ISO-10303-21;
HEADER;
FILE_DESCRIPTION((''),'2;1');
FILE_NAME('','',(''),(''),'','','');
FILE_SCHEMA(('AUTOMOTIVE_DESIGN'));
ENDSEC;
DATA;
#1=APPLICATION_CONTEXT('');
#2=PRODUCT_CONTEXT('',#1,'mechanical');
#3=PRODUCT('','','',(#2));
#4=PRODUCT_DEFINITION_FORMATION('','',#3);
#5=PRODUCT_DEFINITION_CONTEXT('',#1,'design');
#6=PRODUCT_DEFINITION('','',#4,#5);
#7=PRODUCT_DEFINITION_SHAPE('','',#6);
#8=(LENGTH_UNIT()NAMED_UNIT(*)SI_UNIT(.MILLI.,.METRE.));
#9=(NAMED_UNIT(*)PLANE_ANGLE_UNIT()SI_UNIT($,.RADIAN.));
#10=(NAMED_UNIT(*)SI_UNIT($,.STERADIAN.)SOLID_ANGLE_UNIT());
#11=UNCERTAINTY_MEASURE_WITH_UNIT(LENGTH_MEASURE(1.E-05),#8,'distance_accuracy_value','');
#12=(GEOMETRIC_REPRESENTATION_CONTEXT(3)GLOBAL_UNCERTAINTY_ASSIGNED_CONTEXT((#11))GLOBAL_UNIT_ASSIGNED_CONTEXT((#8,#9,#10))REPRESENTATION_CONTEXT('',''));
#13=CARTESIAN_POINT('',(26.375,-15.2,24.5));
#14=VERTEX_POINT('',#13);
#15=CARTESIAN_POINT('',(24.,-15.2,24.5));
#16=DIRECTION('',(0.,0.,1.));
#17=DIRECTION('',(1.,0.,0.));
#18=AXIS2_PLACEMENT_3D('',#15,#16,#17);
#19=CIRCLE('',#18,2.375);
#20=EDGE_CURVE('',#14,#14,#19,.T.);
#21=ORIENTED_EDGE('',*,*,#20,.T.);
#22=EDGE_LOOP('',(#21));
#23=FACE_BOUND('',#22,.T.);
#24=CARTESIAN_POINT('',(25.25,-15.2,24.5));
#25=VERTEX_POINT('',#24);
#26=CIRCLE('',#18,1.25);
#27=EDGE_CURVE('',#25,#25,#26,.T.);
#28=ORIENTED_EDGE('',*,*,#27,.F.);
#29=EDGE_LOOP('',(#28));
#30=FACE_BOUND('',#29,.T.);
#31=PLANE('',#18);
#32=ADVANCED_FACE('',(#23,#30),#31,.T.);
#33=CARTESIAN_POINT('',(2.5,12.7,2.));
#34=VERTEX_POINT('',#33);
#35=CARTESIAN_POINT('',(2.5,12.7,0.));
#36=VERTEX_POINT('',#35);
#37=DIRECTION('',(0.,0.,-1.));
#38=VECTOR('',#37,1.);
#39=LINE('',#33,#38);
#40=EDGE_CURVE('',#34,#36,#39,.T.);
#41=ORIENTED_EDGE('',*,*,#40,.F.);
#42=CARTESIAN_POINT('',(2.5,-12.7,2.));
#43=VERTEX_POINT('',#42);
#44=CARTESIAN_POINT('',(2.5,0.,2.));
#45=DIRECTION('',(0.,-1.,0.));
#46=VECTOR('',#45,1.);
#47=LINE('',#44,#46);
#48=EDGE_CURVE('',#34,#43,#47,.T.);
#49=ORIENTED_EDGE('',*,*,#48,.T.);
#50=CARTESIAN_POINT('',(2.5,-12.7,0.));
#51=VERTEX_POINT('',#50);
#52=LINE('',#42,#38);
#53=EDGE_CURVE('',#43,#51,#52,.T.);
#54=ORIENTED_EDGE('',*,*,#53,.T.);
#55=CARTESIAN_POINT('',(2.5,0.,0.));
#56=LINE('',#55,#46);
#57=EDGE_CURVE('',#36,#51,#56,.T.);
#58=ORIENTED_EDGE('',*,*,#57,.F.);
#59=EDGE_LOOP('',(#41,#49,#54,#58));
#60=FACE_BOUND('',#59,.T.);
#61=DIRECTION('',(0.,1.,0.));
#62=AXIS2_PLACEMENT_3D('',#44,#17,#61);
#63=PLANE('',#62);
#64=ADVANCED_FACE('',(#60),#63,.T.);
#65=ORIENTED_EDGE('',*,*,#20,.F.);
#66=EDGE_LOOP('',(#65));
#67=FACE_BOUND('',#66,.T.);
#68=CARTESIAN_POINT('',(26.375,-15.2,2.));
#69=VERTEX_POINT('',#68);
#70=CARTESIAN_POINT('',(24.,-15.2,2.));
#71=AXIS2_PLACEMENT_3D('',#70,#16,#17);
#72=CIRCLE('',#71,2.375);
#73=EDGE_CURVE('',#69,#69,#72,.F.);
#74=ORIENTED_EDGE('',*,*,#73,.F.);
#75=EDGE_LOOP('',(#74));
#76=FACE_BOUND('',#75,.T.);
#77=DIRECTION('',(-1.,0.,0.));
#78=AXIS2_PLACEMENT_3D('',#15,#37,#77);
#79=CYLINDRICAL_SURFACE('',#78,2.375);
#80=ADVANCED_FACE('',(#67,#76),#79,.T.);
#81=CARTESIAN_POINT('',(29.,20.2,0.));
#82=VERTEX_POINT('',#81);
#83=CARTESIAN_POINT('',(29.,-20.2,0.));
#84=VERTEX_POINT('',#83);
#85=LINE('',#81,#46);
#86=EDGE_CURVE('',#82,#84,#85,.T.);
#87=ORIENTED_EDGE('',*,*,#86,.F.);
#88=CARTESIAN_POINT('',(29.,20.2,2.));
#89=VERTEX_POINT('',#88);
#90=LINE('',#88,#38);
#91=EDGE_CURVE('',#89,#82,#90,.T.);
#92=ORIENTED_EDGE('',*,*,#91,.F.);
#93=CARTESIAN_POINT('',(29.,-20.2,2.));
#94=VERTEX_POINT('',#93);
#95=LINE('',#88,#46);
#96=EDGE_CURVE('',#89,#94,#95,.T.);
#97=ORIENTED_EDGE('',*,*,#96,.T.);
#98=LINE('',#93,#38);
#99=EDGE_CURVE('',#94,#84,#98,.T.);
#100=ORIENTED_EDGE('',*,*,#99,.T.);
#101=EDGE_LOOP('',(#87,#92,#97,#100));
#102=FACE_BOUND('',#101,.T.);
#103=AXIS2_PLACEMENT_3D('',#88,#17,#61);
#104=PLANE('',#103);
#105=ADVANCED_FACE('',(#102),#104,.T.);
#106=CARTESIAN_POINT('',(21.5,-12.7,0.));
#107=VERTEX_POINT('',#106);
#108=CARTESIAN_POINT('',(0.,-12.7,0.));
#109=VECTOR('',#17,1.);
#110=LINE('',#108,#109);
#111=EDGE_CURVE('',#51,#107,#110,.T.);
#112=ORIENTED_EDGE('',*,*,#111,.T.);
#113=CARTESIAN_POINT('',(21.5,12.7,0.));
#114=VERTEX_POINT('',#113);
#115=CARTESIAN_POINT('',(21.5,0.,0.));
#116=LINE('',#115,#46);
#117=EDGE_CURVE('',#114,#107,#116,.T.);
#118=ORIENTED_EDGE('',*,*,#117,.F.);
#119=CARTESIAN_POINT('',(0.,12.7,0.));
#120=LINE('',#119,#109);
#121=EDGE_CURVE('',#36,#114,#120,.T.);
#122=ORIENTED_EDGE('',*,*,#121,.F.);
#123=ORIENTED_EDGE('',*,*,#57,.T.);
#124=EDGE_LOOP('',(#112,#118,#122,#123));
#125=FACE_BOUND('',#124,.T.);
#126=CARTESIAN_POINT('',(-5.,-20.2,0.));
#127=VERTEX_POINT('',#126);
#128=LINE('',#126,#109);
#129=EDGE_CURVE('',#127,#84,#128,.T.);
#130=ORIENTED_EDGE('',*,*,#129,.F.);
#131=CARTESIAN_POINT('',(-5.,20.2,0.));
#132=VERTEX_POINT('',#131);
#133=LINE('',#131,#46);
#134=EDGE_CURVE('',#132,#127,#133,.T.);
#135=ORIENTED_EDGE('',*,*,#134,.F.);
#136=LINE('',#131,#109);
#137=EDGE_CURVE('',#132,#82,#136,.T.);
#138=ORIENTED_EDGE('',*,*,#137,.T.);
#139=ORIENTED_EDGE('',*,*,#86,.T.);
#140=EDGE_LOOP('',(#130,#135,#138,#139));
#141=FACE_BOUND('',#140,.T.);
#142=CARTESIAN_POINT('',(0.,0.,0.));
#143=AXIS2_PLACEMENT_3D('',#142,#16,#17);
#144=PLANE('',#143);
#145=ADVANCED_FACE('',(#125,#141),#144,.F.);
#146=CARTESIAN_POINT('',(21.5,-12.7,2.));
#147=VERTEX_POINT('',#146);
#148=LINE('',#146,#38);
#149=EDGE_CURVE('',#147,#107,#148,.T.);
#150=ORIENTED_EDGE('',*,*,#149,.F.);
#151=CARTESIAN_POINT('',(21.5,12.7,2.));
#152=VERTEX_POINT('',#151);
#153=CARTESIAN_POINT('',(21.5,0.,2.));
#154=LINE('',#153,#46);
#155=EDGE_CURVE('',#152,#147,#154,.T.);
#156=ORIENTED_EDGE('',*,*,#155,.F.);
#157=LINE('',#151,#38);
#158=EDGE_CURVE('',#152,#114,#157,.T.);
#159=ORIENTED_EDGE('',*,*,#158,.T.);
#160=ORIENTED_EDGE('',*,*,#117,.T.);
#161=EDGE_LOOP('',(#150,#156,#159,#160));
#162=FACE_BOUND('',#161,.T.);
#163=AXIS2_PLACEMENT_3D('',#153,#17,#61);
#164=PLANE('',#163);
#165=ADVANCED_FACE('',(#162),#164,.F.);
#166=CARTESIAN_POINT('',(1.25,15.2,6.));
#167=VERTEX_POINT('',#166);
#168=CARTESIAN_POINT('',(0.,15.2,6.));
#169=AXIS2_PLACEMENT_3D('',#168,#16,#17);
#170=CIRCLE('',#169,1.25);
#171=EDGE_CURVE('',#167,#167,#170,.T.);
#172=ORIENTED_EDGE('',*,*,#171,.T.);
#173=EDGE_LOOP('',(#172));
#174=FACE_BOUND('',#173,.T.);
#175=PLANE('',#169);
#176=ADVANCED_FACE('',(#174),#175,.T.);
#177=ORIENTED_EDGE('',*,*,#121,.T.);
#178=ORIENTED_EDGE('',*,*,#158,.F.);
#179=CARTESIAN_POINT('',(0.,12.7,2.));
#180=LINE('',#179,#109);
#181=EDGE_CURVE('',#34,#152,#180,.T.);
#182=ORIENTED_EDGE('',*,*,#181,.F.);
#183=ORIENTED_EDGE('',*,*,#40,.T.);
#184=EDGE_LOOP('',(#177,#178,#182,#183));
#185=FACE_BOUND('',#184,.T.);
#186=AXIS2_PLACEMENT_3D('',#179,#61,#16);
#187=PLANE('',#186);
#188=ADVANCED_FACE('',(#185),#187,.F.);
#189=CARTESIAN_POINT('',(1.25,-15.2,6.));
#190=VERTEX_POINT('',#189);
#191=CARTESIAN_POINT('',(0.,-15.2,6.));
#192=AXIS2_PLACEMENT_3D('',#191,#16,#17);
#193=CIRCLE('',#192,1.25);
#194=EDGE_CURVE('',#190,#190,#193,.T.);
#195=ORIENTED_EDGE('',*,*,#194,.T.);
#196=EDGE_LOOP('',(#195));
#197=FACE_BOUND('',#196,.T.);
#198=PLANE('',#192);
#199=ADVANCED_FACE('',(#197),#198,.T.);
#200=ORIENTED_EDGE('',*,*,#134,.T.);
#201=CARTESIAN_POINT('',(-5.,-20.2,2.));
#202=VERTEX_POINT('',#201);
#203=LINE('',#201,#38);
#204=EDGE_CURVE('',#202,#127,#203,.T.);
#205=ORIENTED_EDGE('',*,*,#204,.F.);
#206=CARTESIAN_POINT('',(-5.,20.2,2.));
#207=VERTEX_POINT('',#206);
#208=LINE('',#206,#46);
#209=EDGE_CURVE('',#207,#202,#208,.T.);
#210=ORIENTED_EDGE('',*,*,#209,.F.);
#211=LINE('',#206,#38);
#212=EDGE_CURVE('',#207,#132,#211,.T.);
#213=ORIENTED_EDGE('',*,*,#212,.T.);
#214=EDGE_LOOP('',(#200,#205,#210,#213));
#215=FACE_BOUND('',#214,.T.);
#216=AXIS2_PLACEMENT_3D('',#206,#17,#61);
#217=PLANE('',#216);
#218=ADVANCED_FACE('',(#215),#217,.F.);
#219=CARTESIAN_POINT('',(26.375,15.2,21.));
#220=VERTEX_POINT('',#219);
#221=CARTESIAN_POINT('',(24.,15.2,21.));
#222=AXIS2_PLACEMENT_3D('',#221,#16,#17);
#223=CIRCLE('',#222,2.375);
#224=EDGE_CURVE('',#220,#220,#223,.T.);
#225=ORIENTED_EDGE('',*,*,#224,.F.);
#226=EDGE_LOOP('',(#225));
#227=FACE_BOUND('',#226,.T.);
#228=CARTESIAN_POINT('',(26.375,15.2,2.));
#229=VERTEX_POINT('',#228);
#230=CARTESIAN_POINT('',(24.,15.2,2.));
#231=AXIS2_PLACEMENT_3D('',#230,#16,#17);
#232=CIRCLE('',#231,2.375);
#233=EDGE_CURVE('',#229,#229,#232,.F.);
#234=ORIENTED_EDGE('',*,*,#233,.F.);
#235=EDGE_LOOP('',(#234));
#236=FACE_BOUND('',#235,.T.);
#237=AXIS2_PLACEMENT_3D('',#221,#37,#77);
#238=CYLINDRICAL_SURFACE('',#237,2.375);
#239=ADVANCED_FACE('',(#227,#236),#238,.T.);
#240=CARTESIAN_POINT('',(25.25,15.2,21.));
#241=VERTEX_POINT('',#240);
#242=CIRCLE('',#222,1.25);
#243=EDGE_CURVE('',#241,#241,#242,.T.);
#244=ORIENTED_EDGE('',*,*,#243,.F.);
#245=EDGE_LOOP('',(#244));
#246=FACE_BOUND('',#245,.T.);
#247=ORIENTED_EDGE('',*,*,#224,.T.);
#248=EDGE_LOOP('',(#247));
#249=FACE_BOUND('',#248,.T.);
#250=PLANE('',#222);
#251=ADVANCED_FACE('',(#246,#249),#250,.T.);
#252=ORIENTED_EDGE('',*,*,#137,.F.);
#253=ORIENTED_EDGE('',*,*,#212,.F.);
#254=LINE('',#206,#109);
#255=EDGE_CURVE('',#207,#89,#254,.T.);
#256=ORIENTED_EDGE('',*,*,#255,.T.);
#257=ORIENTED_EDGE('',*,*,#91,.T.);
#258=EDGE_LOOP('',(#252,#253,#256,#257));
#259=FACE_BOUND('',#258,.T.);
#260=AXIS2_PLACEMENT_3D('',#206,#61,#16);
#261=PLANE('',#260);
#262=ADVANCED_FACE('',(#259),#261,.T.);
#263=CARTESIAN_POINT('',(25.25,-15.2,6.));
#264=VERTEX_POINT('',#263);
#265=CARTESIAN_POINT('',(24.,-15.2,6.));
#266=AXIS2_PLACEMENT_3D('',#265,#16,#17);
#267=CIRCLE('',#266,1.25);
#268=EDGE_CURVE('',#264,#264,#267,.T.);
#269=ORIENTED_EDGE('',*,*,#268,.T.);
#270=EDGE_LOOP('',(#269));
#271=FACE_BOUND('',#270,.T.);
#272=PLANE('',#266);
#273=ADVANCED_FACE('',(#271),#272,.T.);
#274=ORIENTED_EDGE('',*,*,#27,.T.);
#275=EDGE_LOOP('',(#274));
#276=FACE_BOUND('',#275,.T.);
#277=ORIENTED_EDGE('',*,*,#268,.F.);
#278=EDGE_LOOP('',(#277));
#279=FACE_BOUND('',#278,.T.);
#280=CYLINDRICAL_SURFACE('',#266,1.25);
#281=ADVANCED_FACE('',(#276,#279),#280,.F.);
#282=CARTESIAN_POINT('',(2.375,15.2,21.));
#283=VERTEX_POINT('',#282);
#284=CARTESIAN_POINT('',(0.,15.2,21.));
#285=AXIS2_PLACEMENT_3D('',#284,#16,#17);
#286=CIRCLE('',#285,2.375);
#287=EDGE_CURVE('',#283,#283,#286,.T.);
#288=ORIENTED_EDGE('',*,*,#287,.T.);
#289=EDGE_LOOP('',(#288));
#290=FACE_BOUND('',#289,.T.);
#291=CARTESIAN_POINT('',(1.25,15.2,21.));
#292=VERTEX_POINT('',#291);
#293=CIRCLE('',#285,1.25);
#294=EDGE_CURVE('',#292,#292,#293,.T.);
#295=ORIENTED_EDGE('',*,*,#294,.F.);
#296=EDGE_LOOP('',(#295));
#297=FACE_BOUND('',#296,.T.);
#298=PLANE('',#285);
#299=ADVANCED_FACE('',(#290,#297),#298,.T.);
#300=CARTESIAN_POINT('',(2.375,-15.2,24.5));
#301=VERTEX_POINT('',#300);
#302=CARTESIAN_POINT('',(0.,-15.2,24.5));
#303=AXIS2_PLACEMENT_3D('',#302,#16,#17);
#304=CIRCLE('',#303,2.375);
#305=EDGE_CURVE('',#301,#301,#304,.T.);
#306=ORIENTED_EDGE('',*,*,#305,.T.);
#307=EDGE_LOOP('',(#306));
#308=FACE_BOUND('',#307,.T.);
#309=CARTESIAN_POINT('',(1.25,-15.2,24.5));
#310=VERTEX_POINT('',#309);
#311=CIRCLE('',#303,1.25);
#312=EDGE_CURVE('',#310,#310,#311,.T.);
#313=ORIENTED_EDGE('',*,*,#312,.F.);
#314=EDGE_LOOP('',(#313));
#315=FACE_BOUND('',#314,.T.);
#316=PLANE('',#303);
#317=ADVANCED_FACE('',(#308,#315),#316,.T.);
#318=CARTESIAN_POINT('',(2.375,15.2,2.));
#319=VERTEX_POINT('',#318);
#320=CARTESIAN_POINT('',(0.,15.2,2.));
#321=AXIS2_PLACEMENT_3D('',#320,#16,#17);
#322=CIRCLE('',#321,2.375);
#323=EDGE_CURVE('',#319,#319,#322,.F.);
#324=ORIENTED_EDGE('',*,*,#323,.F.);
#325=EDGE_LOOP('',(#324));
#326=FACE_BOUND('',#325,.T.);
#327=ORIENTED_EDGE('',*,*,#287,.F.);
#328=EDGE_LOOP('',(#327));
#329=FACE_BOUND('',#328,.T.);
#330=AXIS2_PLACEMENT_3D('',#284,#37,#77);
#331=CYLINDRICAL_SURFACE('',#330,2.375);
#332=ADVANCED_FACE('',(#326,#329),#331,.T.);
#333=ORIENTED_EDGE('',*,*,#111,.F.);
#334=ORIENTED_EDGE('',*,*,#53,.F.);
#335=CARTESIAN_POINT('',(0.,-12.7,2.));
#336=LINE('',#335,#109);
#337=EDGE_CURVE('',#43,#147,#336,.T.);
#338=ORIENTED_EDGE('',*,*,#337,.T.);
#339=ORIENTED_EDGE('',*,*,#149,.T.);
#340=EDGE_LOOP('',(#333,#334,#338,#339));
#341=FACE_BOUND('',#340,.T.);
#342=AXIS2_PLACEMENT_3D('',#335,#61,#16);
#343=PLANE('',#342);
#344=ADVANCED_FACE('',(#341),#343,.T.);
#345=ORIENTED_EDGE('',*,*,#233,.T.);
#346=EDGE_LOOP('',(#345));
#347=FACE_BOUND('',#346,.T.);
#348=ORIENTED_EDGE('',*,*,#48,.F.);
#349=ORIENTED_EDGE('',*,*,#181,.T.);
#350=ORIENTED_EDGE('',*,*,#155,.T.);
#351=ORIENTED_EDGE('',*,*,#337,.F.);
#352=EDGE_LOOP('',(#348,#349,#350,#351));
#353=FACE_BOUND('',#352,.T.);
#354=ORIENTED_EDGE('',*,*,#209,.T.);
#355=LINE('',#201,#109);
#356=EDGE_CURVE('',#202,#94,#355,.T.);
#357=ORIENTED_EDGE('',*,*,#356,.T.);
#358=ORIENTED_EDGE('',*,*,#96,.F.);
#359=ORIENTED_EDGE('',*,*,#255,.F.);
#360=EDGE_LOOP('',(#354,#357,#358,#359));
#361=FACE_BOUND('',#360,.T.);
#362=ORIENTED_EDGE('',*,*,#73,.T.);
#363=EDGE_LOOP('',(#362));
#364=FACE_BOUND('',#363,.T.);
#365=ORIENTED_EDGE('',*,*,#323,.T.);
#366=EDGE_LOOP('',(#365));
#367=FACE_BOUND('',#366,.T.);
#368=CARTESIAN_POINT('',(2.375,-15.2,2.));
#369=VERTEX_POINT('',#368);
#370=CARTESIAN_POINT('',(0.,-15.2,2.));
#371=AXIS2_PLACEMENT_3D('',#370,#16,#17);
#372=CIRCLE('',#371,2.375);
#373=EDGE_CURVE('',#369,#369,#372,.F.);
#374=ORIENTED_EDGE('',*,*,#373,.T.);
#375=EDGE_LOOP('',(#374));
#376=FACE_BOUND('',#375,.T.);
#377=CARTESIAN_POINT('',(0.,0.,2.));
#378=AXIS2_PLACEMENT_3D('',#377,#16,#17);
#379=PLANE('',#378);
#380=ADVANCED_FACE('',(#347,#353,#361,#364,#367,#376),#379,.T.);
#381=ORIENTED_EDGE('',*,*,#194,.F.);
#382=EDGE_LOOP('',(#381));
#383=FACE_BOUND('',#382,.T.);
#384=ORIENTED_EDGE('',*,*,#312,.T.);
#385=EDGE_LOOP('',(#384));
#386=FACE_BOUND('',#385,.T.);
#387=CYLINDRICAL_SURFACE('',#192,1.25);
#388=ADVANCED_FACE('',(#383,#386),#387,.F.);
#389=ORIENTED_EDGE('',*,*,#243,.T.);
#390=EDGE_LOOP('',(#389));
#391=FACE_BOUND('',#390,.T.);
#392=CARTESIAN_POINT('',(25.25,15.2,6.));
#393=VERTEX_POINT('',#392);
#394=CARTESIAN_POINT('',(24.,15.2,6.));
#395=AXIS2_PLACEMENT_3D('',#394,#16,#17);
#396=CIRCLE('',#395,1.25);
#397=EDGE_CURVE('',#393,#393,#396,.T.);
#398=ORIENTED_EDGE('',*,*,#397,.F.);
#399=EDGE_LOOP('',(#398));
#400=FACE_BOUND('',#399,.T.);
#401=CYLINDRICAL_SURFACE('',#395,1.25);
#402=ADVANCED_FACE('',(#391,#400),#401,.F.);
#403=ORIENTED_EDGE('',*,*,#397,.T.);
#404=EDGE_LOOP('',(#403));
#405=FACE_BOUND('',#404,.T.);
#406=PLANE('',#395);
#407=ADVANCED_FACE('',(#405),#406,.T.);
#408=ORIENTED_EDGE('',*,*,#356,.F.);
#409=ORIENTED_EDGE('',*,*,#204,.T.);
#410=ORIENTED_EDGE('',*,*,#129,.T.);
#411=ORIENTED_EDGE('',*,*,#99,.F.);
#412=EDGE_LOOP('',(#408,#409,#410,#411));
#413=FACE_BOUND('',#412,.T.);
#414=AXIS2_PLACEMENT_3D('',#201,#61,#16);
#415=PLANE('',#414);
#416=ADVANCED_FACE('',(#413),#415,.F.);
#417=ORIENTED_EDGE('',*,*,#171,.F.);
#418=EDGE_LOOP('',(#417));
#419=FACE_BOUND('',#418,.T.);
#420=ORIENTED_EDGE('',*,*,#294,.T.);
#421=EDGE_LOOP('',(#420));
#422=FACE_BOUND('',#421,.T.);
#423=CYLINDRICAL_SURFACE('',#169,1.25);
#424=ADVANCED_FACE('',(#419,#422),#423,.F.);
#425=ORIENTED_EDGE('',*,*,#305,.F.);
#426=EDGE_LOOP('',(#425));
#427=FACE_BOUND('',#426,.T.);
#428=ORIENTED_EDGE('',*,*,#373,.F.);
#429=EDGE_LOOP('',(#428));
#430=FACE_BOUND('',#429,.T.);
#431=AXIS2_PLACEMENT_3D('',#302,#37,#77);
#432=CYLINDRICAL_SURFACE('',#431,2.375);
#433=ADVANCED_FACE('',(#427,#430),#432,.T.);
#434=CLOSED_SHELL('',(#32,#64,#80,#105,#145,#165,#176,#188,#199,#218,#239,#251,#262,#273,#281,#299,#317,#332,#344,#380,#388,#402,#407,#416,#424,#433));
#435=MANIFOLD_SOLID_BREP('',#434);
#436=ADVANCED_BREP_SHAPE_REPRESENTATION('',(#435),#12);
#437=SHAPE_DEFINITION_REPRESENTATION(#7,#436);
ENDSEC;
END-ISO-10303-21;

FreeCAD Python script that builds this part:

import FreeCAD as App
import Part
import Sketcher

doc = App.newDocument("Part")
body = doc.addObject("PartDesign::Body", "Body")

sketch1 = body.newObject("Sketcher::SketchObject", "Sketch")
sketch1.AttachmentSupport = (doc.getObject("XY_Plane"), [""])
sketch1.MapMode = "FlatFace"
sketch1.addGeometry([
    Part.LineSegment(App.Vector(-5, 20, 0), App.Vector(-5, -20, 0)),
    Part.LineSegment(App.Vector(-5, -20, 0), App.Vector(29, -20, 0)),
    Part.LineSegment(App.Vector(29, -20, 0), App.Vector(29, 20, 0)),
    Part.LineSegment(App.Vector(29, 20, 0), App.Vector(-5, 20, 0)),
    Part.LineSegment(App.Vector(22, -13, 0), App.Vector(2, -13, 0)),
    Part.LineSegment(App.Vector(2, -13, 0), App.Vector(2, 13, 0)),
    Part.LineSegment(App.Vector(2, 13, 0), App.Vector(22, 13, 0)),
    Part.LineSegment(App.Vector(22, 13, 0), App.Vector(22, -13, 0)),
], False)
sketch1.addConstraint([
    Sketcher.Constraint("Coincident", 0, 2, 1, 1),
    Sketcher.Constraint("Coincident", 1, 2, 2, 1),
    Sketcher.Constraint("Coincident", 2, 2, 3, 1),
    Sketcher.Constraint("Coincident", 3, 2, 0, 1),
    Sketcher.Constraint("Coincident", 4, 2, 5, 1),
    Sketcher.Constraint("Coincident", 5, 2, 6, 1),
    Sketcher.Constraint("Coincident", 6, 2, 7, 1),
    Sketcher.Constraint("Coincident", 7, 2, 4, 1),
    Sketcher.Constraint("Vertical", 0),
    Sketcher.Constraint("Horizontal", 1),
    Sketcher.Constraint("Vertical", 2),
    Sketcher.Constraint("Horizontal", 3),
    Sketcher.Constraint("Horizontal", 4),
    Sketcher.Constraint("Vertical", 5),
    Sketcher.Constraint("Horizontal", 6),
    Sketcher.Constraint("Vertical", 7),
    Sketcher.Constraint("DistanceX", 1, 1, 1, 2, 34.0),
    Sketcher.Constraint("DistanceX", 4, 2, 4, 1, 19.0),
    Sketcher.Constraint("DistanceY", 0, 2, 0, 1, 40.4),
    Sketcher.Constraint("DistanceY", 5, 1, 5, 2, 25.4),
    Sketcher.Constraint("DistanceX", 0, 2, -1, 1, 5.0),
    Sketcher.Constraint("DistanceY", 0, 2, -1, 1, 20.2),
    Sketcher.Constraint("DistanceX", -1, 1, 4, 2, 2.5),
    Sketcher.Constraint("DistanceY", 4, 2, -1, 1, 12.7),
])
pad1 = body.newObject("PartDesign::Pad", "Pad")
pad1.Profile = sketch1
pad1.Length = 2

sketch2 = body.newObject("Sketcher::SketchObject", "Sketch001")
sketch2.AttachmentSupport = (doc.getObject("XY_Plane"), [""])
sketch2.MapMode = "FlatFace"
sketch2.addGeometry([
    Part.Circle(App.Vector(0, 15.2, 0), App.Vector(0, 0, 1), 2.4),
    Part.Circle(App.Vector(24, 15.2, 0), App.Vector(0, 0, 1), 2.4),
], False)
sketch2.addConstraint([
    Sketcher.Constraint("Equal", 0, 1),
    Sketcher.Constraint("PointOnObject", 0, 3, -2),
    Sketcher.Constraint("Horizontal", 0, 3, 1, 3),
    Sketcher.Constraint("Diameter", 0, 4.75),
    Sketcher.Constraint("DistanceX", -1, 1, 1, 3, 24.0),
    Sketcher.Constraint("DistanceY", -1, 1, 0, 3, 15.2),
])
pad2 = body.newObject("PartDesign::Pad", "Pad001")
pad2.Profile = sketch2
pad2.Length = 21

sketch3 = body.newObject("Sketcher::SketchObject", "Sketch002")
sketch3.AttachmentSupport = (doc.getObject("XY_Plane"), [""])
sketch3.MapMode = "FlatFace"
sketch3.AttachmentOffset = App.Placement(App.Vector(0, 0, 21), App.Rotation())
sketch3.addGeometry([
    Part.Circle(App.Vector(0, 15.2, 0), App.Vector(0, 0, 1), 1.2),
    Part.Circle(App.Vector(24, 15.2, 0), App.Vector(0, 0, 1), 1.2),
    Part.Circle(App.Vector(24, -15.2, 0), App.Vector(0, 0, 1), 1.2),
    Part.Circle(App.Vector(0, -15.2, 0), App.Vector(0, 0, 1), 1.2),
], False)
sketch3.addConstraint([
    Sketcher.Constraint("Equal", 0, 1),
    Sketcher.Constraint("Equal", 1, 2),
    Sketcher.Constraint("Equal", 2, 3),
    Sketcher.Constraint("Symmetric", 0, 3, 3, 3, -1, 1),
    Sketcher.Constraint("Symmetric", 1, 3, 2, 3, -1),
    Sketcher.Constraint("PointOnObject", 0, 3, -2),
    Sketcher.Constraint("Horizontal", 0, 3, 1, 3),
    Sketcher.Constraint("Diameter", 0, 2.5),
    Sketcher.Constraint("DistanceX", -1, 1, 1, 3, 24.0),
    Sketcher.Constraint("DistanceY", -1, 1, 0, 3, 15.2),
])
pocket1 = body.newObject("PartDesign::Pocket", "Pocket")
pocket1.Profile = sketch3
pocket1.Length = 15

sketch4 = body.newObject("Sketcher::SketchObject", "Sketch003")
sketch4.AttachmentSupport = (doc.getObject("XY_Plane"), [""])
sketch4.MapMode = "FlatFace"
sketch4.addGeometry([
    Part.Circle(App.Vector(24, -15.2, 0), App.Vector(0, 0, 1), 2.4),
    Part.Circle(App.Vector(0, -15.2, 0), App.Vector(0, 0, 1), 2.4),
], False)
sketch4.addConstraint([
    Sketcher.Constraint("Equal", 0, 1),
    Sketcher.Constraint("PointOnObject", 1, 3, -2),
    Sketcher.Constraint("Horizontal", 0, 3, 1, 3),
    Sketcher.Constraint("Diameter", 0, 4.75),
    Sketcher.Constraint("DistanceX", -1, 1, 0, 3, 24.0),
    Sketcher.Constraint("DistanceY", 0, 3, -1, 1, 15.2),
])
pad3 = body.newObject("PartDesign::Pad", "Pad002")
pad3.Profile = sketch4
pad3.Length = 24.5

sketch5 = body.newObject("Sketcher::SketchObject", "Sketch004")
sketch5.AttachmentSupport = (doc.getObject("XY_Plane"), [""])
sketch5.MapMode = "FlatFace"
sketch5.AttachmentOffset = App.Placement(App.Vector(0, 0, 24.5), App.Rotation())
sketch5.addGeometry([
    Part.Circle(App.Vector(0, -15.2, 0), App.Vector(0, 0, 1), 1.2),
    Part.Circle(App.Vector(24, -15.2, 0), App.Vector(0, 0, 1), 1.2),
], False)
sketch5.addConstraint([
    Sketcher.Constraint("Equal", 0, 1),
    Sketcher.Constraint("PointOnObject", 0, 3, -2),
    Sketcher.Constraint("Horizontal", 0, 3, 1, 3),
    Sketcher.Constraint("Diameter", 0, 2.5),
    Sketcher.Constraint("DistanceX", -1, 1, 1, 3, 24.0),
    Sketcher.Constraint("DistanceY", 0, 3, -1, 1, 15.2),
])
pocket2 = body.newObject("PartDesign::Pocket", "Pocket001")
pocket2.Profile = sketch5
pocket2.Length = 18.5

doc.recompute()
